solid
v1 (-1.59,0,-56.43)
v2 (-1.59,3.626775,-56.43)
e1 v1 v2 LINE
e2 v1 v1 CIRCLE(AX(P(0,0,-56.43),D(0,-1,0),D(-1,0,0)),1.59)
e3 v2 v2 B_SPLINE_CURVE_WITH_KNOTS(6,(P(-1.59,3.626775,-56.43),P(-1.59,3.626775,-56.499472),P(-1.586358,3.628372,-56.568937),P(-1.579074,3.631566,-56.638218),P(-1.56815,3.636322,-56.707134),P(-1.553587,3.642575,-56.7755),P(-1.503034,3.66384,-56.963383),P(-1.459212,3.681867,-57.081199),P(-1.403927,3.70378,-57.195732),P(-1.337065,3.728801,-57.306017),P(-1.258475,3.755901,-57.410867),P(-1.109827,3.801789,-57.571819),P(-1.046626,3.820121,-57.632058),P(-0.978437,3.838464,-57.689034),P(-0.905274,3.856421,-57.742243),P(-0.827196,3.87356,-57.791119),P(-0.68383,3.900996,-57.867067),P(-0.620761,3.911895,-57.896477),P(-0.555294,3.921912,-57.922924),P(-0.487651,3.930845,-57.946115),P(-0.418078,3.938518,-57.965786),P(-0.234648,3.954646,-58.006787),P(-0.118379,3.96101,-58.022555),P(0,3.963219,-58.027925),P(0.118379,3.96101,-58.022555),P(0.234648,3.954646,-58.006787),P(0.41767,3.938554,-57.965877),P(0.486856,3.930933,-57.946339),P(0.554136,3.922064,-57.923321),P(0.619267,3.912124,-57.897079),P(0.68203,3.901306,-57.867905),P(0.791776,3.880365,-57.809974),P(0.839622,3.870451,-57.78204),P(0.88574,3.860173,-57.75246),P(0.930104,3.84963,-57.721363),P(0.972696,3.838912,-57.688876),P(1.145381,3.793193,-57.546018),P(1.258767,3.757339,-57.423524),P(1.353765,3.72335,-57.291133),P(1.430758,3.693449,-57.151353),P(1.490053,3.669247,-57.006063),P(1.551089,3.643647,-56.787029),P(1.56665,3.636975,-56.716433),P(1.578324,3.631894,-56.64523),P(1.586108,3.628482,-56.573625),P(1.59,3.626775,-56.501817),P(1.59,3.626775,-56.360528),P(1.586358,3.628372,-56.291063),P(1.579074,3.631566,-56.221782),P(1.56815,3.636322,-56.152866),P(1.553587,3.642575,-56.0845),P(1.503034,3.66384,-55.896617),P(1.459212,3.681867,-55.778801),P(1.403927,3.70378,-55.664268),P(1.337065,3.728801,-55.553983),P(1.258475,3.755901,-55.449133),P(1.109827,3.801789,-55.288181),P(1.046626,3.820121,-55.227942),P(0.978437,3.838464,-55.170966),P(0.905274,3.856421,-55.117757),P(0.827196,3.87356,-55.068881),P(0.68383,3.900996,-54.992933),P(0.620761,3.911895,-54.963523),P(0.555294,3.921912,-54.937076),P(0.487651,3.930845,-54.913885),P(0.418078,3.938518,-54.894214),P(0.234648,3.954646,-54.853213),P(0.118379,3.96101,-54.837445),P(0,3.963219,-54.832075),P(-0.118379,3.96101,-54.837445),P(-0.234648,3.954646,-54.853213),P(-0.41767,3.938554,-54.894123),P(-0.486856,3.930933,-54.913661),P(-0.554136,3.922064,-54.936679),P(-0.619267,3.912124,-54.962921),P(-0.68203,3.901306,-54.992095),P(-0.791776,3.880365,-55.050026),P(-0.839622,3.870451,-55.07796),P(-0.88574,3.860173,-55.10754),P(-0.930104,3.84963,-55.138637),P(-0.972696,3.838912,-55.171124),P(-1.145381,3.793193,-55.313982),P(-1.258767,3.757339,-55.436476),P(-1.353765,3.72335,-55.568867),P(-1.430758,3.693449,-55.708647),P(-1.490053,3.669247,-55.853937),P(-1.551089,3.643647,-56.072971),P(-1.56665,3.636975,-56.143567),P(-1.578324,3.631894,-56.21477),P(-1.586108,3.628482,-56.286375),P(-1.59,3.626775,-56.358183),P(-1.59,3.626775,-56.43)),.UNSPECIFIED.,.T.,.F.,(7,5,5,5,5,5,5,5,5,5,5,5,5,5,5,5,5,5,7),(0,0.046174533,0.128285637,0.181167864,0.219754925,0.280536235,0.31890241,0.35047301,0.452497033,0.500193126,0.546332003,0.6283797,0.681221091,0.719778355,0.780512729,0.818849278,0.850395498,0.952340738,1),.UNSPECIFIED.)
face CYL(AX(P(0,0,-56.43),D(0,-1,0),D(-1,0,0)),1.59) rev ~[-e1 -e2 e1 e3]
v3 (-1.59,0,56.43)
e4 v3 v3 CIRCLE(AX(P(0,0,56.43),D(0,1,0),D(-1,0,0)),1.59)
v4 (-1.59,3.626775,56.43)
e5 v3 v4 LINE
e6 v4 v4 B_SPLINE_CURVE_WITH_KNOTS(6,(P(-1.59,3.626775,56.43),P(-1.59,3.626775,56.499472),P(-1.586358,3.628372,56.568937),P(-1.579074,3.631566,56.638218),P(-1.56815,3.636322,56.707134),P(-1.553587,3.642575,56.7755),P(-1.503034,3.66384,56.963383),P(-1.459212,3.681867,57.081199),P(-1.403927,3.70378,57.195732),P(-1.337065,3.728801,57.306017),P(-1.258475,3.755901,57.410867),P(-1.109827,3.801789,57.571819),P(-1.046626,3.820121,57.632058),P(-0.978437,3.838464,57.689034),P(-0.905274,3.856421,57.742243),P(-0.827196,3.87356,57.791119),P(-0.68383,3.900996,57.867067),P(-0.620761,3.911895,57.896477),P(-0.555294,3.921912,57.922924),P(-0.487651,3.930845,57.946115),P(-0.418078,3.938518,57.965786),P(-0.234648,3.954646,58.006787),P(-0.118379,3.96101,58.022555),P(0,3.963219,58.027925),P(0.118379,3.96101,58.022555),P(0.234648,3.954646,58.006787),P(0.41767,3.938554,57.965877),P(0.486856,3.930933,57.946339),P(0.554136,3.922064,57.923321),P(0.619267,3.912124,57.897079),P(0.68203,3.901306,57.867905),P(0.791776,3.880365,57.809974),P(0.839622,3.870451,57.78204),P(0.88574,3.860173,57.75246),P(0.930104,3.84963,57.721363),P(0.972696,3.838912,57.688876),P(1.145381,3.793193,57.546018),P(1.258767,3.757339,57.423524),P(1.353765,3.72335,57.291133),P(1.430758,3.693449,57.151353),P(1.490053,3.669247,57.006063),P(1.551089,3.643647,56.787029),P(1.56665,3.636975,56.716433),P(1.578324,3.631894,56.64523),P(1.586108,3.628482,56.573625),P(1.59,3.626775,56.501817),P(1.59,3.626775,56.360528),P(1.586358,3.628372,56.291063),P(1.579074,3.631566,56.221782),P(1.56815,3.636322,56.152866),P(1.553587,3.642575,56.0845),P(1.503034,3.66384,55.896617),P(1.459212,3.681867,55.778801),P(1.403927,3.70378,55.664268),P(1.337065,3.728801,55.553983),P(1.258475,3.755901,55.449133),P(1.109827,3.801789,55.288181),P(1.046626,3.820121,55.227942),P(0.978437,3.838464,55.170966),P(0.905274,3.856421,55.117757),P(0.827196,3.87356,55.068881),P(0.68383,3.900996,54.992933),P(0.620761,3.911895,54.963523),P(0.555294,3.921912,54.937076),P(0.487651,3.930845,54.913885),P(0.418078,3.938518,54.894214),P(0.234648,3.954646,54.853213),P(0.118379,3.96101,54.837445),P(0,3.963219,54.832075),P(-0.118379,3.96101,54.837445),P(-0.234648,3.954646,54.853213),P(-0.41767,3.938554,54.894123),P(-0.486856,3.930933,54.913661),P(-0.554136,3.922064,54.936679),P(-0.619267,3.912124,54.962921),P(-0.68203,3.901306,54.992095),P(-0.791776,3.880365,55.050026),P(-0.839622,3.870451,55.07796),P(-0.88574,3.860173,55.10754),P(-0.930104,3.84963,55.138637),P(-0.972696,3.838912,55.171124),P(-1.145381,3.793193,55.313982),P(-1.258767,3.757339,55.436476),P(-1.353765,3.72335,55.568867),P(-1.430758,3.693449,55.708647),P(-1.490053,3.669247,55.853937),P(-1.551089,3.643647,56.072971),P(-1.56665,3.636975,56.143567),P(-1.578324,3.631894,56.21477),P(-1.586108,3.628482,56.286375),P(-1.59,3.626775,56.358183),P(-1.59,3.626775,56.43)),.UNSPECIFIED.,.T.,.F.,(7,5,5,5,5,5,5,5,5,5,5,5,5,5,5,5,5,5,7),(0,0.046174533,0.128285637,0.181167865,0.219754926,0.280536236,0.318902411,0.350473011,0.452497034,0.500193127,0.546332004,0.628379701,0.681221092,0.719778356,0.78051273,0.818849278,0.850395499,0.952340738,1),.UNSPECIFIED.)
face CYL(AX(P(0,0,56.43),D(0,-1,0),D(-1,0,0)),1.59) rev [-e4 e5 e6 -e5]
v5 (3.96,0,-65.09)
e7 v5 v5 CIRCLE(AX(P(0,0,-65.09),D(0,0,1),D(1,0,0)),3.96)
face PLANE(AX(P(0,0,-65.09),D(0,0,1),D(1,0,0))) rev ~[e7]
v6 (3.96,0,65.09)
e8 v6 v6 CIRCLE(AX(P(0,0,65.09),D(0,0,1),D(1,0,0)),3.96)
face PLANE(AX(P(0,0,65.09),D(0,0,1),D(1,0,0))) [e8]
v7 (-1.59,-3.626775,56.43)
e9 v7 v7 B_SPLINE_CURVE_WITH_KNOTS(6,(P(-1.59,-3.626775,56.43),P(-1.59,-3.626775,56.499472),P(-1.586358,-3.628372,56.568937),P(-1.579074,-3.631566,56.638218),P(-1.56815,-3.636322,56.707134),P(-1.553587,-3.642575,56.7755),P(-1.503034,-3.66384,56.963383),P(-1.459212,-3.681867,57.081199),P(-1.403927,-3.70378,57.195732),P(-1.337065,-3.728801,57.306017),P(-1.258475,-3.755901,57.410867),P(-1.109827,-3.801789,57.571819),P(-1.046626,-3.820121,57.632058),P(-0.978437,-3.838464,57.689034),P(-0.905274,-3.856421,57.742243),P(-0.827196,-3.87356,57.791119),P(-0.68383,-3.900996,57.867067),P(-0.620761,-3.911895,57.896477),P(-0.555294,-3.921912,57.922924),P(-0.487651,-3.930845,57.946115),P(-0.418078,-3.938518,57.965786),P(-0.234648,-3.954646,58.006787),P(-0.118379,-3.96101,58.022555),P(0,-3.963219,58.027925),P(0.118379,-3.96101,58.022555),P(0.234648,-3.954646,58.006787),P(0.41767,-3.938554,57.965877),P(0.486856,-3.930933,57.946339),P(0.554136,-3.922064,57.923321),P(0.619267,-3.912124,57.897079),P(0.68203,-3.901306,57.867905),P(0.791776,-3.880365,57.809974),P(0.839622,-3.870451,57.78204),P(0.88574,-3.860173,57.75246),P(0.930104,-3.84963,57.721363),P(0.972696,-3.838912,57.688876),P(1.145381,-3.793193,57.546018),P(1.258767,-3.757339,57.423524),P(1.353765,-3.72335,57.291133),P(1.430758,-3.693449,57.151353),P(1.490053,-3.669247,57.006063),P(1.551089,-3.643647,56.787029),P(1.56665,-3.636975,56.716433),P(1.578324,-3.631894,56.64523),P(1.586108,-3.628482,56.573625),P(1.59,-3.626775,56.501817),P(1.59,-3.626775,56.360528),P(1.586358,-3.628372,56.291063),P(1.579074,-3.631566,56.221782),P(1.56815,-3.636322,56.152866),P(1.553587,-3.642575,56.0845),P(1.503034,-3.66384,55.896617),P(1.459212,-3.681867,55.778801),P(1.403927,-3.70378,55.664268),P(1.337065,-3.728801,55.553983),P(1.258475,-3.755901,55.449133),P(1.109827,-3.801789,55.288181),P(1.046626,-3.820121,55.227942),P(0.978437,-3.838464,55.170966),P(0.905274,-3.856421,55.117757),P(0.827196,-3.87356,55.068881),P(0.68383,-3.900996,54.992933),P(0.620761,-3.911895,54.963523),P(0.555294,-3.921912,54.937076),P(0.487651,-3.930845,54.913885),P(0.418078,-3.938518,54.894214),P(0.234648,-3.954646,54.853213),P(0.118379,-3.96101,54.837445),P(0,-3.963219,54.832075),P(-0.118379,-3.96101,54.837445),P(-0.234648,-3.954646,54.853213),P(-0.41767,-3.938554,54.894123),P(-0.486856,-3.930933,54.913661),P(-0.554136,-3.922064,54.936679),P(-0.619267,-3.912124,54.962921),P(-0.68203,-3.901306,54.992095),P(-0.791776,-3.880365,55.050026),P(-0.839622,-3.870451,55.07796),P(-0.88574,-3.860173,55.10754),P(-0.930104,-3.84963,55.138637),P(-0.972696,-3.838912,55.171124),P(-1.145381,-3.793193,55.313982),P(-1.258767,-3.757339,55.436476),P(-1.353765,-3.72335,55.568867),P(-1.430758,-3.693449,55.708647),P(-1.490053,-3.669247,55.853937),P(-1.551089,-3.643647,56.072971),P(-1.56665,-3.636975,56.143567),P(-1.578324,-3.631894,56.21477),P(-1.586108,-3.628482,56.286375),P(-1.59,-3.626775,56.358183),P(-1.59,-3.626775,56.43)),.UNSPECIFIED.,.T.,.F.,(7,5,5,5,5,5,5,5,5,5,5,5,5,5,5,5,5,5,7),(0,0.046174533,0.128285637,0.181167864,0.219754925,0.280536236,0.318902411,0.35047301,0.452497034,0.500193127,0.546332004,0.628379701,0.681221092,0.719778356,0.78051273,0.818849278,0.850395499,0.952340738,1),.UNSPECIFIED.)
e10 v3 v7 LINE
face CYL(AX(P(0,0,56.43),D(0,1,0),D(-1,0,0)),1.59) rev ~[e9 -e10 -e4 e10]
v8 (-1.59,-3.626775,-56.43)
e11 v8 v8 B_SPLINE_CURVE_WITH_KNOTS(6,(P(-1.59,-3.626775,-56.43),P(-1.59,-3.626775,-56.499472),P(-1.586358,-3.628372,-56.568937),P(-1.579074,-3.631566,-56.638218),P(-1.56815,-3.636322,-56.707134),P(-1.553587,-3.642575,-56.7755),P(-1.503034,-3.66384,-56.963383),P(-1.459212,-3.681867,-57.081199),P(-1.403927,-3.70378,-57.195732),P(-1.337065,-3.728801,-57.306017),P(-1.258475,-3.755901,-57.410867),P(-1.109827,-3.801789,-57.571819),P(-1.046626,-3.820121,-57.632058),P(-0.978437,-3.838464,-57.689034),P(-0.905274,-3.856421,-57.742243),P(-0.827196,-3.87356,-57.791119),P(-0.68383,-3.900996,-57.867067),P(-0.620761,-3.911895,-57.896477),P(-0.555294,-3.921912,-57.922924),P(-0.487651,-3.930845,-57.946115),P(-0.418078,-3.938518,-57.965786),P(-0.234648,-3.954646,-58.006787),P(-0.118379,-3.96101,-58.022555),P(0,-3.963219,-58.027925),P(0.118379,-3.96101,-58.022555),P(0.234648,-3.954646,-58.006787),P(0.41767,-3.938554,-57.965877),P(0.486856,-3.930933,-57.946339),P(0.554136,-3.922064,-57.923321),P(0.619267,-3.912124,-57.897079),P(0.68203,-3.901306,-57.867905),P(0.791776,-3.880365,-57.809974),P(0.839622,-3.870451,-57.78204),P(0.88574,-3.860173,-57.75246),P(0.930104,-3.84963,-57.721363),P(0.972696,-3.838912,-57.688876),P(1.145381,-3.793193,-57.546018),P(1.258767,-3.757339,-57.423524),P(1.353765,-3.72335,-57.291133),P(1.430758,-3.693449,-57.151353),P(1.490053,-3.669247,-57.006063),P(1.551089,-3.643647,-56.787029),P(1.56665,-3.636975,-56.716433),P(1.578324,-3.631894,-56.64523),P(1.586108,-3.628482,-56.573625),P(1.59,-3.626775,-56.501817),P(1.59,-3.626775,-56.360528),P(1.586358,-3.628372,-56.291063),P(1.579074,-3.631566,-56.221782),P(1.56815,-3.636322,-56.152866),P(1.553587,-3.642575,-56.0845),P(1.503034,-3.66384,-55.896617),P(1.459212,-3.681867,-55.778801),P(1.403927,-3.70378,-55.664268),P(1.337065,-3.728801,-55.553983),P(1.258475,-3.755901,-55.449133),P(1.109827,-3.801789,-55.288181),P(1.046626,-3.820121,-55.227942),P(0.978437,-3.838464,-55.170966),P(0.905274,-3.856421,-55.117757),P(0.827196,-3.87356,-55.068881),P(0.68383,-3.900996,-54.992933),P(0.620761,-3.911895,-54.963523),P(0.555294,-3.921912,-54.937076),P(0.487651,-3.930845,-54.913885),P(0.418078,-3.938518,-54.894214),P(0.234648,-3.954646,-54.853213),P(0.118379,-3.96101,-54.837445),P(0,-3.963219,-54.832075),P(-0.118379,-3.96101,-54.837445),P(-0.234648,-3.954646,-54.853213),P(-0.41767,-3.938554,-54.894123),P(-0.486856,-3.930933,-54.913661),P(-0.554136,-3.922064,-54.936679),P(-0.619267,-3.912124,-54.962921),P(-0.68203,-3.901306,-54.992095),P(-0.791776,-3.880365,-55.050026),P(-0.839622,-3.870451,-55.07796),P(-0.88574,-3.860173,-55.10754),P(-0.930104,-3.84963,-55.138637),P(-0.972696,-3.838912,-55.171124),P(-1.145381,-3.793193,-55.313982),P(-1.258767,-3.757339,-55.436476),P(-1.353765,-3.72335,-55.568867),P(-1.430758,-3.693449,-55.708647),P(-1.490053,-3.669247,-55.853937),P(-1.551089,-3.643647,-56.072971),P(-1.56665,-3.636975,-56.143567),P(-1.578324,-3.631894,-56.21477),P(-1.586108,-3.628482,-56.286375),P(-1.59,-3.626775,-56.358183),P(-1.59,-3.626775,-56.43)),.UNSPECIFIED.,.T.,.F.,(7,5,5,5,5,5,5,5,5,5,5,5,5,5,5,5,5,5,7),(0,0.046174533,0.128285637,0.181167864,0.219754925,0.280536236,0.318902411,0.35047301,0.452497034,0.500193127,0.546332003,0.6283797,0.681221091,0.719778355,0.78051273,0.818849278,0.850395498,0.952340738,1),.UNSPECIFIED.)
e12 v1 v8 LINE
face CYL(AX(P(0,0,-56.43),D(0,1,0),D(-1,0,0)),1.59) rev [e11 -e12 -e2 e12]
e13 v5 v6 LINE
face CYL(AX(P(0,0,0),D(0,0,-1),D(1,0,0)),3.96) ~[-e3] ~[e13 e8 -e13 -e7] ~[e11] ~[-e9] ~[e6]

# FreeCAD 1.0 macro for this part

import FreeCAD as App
import Part
import Sketcher

V = App.Vector
Q = App.Units.Quantity

doc = App.newDocument("Part")
body = doc.addObject("PartDesign::Body", "Body")

# Sketch on XY plane
sketch1 = body.newObject("Sketcher::SketchObject", "Sketch")
sketch1.AttachmentSupport = (doc.getObject("XY_Plane"), [""])
sketch1.MapMode = "FlatFace"
sketch1.addGeometry(Part.Circle(V(0, 0, 0), V(0, 0, 1), 4), False)
sketch1.addConstraint([
    Sketcher.Constraint("Coincident", 0, 3, -1, 1),
    Sketcher.Constraint("Diameter", 0, Q("7.92 mm")),
])
pad1 = body.newObject("PartDesign::Pad", "Pad")
pad1.Profile = sketch1
pad1.Length = 130.18
pad1.Midplane = True

# Sketch on XZ plane
sketch2 = body.newObject("Sketcher::SketchObject", "Sketch001")
sketch2.AttachmentSupport = (doc.getObject("XZ_Plane"), [""])
sketch2.MapMode = "FlatFace"
sketch2.addGeometry(Part.Circle(V(0, 56.4, 0), V(0, 0, 1), 1.6), False)
sketch2.addConstraint([
    Sketcher.Constraint("PointOnObject", 0, 3, -2),
    Sketcher.Constraint("Diameter", 0, Q("3.18 mm")),
    Sketcher.Constraint("DistanceY", -1, 1, 0, 3, Q("56.43 mm")),
])
pocket1 = body.newObject("PartDesign::Pocket", "Pocket")
pocket1.Profile = sketch2
pocket1.Length = 130.18
pocket1.Midplane = True
doc.recompute()

mirrored = body.newObject("PartDesign::Mirrored", "Mirrored")
mirrored.Originals = [pocket1]
mirrored.MirrorPlane = (doc.getObject("XY_Plane"), [""])
body.Tip = mirrored

doc.recompute()
